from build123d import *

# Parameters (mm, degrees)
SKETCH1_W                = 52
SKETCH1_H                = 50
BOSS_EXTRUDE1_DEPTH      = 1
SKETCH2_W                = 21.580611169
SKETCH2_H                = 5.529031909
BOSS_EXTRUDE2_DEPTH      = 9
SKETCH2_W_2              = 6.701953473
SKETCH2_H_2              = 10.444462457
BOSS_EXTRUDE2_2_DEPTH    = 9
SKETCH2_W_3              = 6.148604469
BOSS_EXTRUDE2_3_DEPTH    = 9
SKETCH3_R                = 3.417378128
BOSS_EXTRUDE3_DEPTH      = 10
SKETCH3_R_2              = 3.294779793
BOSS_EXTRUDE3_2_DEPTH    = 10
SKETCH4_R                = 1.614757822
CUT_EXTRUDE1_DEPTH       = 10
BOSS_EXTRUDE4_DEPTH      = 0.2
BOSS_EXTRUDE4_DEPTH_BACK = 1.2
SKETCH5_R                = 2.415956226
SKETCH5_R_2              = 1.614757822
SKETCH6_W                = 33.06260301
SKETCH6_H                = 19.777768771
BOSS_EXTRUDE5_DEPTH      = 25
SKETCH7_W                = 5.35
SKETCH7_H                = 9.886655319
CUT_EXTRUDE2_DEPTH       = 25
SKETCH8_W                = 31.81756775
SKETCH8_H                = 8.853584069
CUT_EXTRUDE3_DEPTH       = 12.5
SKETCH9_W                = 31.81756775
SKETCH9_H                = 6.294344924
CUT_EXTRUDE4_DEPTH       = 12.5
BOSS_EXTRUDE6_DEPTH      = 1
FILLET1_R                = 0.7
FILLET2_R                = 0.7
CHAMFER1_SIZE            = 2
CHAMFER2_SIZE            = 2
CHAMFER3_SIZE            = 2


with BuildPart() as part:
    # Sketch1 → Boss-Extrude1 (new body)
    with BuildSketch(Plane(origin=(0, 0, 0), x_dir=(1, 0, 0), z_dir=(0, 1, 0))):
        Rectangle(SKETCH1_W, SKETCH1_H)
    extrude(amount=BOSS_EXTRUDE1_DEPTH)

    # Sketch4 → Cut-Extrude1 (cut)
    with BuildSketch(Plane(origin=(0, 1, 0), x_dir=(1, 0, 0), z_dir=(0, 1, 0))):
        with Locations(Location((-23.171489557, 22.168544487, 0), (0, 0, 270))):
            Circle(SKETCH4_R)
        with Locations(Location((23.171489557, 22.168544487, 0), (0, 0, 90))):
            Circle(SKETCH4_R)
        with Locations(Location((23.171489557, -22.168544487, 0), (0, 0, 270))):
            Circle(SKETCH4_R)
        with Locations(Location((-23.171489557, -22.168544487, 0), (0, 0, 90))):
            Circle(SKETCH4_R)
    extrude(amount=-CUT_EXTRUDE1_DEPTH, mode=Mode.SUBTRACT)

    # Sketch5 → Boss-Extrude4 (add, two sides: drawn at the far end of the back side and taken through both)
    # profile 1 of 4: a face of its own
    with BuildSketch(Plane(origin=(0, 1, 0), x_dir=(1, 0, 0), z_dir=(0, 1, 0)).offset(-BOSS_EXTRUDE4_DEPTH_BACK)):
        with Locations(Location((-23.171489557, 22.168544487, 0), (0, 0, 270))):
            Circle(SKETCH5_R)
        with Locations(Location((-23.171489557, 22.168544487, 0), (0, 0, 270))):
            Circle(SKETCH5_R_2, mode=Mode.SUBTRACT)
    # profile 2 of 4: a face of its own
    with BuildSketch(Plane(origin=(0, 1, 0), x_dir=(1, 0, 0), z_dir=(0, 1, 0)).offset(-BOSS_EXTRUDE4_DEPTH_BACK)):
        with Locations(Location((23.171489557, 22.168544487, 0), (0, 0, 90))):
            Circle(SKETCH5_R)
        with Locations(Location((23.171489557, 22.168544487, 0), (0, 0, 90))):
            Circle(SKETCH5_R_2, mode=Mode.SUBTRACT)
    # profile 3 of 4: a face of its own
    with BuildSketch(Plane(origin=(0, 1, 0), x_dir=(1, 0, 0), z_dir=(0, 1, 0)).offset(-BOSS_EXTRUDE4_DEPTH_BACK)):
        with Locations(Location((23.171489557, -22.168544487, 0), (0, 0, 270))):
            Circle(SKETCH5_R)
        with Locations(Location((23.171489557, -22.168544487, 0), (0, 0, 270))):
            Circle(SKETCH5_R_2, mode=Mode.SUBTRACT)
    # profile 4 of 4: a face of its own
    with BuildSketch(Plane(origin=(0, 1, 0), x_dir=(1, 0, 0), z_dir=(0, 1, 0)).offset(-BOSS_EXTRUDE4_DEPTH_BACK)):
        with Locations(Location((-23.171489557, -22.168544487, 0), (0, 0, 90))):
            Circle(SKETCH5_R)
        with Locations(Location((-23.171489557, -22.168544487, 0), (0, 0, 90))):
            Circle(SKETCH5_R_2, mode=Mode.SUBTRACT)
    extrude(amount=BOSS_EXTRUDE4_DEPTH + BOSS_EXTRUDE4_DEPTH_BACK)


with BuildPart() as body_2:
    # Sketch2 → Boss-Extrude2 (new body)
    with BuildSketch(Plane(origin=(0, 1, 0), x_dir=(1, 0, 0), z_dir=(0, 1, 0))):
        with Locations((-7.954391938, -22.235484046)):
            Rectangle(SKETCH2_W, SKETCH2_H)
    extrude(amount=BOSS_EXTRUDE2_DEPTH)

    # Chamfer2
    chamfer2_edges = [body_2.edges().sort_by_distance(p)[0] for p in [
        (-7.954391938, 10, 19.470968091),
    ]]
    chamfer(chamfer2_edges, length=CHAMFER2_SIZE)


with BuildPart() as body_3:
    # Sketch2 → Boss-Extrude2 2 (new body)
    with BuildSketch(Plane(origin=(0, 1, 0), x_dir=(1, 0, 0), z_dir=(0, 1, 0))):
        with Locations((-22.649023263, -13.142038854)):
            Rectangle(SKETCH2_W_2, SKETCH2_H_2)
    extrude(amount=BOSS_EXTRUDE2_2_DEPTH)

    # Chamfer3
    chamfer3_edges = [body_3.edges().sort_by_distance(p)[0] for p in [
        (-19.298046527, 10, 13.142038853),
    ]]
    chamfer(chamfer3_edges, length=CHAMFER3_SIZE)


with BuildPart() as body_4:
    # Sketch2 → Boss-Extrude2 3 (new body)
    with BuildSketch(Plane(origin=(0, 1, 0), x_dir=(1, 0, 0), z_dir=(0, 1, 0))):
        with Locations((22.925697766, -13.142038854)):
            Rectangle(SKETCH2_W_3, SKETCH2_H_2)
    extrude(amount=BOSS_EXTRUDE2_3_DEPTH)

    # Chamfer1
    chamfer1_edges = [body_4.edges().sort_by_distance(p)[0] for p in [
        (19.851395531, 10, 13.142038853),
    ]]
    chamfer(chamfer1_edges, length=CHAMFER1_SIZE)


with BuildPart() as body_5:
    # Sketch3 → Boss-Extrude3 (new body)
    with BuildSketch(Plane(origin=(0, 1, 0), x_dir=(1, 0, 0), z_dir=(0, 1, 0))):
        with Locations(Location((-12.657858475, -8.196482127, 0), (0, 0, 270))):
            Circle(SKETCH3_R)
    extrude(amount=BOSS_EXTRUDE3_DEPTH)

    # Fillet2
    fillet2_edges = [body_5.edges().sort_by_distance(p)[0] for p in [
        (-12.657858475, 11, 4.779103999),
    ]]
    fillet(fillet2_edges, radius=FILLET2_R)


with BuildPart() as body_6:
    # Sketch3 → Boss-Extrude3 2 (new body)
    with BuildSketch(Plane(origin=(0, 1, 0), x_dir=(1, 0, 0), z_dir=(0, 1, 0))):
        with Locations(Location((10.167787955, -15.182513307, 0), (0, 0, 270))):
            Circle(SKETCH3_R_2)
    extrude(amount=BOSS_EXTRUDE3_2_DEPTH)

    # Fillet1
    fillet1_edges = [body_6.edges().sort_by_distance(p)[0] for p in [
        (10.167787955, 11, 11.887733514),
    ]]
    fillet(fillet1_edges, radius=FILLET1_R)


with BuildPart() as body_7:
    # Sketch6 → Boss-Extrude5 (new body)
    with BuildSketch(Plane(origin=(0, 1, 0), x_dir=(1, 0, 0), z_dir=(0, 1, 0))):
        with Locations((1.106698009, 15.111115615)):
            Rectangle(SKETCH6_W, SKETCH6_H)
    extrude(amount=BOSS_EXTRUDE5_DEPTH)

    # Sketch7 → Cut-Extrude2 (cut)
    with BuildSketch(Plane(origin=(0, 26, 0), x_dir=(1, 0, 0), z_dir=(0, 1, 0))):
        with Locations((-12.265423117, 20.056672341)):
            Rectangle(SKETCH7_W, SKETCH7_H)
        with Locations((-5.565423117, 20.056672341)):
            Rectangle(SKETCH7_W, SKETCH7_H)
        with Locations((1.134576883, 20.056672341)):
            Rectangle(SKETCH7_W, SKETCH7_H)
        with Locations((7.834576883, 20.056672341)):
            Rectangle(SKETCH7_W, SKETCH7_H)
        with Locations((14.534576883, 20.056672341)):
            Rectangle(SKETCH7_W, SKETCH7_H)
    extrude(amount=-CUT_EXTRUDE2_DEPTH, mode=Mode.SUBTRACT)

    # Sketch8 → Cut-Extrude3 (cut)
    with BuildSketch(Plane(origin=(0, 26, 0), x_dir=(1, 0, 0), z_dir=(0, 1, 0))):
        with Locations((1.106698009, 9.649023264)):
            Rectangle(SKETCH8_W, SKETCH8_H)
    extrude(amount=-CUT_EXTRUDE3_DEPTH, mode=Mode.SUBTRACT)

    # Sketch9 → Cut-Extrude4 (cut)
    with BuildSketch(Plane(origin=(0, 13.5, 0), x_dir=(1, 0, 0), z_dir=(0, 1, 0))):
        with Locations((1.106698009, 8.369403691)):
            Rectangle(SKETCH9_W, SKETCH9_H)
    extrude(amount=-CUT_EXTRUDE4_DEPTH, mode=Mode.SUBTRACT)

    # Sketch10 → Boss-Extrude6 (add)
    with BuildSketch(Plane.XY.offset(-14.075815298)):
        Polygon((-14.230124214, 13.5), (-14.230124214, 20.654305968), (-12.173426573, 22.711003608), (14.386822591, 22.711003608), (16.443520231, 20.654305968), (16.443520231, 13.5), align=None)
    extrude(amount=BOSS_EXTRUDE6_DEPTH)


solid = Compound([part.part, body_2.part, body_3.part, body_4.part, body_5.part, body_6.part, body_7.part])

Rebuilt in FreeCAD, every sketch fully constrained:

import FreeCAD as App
import Part
import Sketcher

V = App.Vector
Q = App.Units.Quantity


def edges_at(feature, points):
    """Names of the edges that pass closest to the given points."""
    edges = feature.Shape.Edges
    near = lambda p: min(range(len(edges)), key=lambda i: edges[i].distToShape(Part.Vertex(*p))[0])
    return sorted({f"Edge{near(p) + 1}" for p in points})


def add_polygon(sketch, points):
    """Adds a closed chain of lines whose ends are joined by coincident constraints."""
    first, n = sketch.GeometryCount, len(points)
    for a, b in zip(points, points[1:] + points[:1]):
        sketch.addGeometry(Part.LineSegment(App.Vector(*a, 0), App.Vector(*b, 0)), False)
    for i in range(n):
        sketch.addConstraint(Sketcher.Constraint("Coincident", first + i, 2, first + (i + 1) % n, 1))

doc = App.newDocument("Part")
params = doc.addObject("Spreadsheet::Sheet", "Params")
for row, (alias, value) in enumerate([
    ("sketch1_width", "52 mm"),
    ("sketch1_height", "50 mm"),
    ("pad1_length", "1 mm"),
    ("pocket1_length", "10 mm"),
    ("pad2_length", "0.2 mm"),
    ("pad2_length2", "1.2 mm"),
    ("pad3_length", "9 mm"),
    ("chamfer_size", "2 mm"),
    ("pad4_length", "9 mm"),
    ("chamfer2_size", "2 mm"),
    ("pad5_length", "9 mm"),
    ("chamfer3_size", "2 mm"),
    ("pad6_length", "10 mm"),
    ("fillet_radius", "0.7 mm"),
    ("pad7_length", "10 mm"),
    ("fillet2_radius", "0.7 mm"),
    ("pad8_length", "25 mm"),
    ("sketch10_width", "5.35 mm"),
    ("pocket2_length", "25 mm"),
    ("pocket3_length", "12.5 mm"),
    ("pocket4_length", "12.5 mm"),
    ("pad9_length", "1 mm"),
], start=1):
    params.set(f"A{row}", alias)
    params.set(f"B{row}", "=" + value)
    params.setAlias(f"B{row}", alias)

body = doc.addObject("PartDesign::Body", "Body")

# Sketch on XZ plane
sketch1 = body.newObject("Sketcher::SketchObject", "Sketch")
sketch1.AttachmentSupport = (doc.getObject("XZ_Plane"), [""])
sketch1.MapMode = "FlatFace"
add_polygon(sketch1, [(-26, -25), (-26, 25), (26, 25), (26, -25)])  # lines 0-3
sketch1.addConstraint([
    Sketcher.Constraint("Vertical", 0),
    Sketcher.Constraint("Horizontal", 1),
    Sketcher.Constraint("Vertical", 2),
    Sketcher.Constraint("Horizontal", 3),
    Sketcher.Constraint("Symmetric", 0, 2, 2, 2, -1, 1),
    Sketcher.Constraint("DistanceX", 1, 1, 1, 2, Q("52 mm")),
    Sketcher.Constraint("DistanceY", 0, 1, 0, 2, Q("50 mm")),
])
sketch1.setExpression("Constraints[9]", "Params.sketch1_width")
sketch1.setExpression("Constraints[10]", "Params.sketch1_height")
pad1 = body.newObject("PartDesign::Pad", "Pad")
pad1.Profile = sketch1
pad1.setExpression("Length", "Params.pad1_length")
pad1.Reversed = True

# Sketch on XZ plane
sketch2 = body.newObject("Sketcher::SketchObject", "Sketch001")
sketch2.AttachmentSupport = (doc.getObject("XZ_Plane"), [""])
sketch2.MapMode = "FlatFace"
sketch2.AttachmentOffset = App.Placement(V(0, 0, -1), App.Rotation())
sketch2.addGeometry([
    Part.Circle(V(-23.2, -22.2, 0), V(0, 0, 1), 1.6),
    Part.Circle(V(23.2, -22.2, 0), V(0, 0, 1), 1.6),
    Part.Circle(V(23.2, 22.2, 0), V(0, 0, 1), 1.6),
    Part.Circle(V(-23.2, 22.2, 0), V(0, 0, 1), 1.6),
], False)
sketch2.addConstraint([
    Sketcher.Constraint("Equal", 0, 1),
    Sketcher.Constraint("Equal", 1, 2),
    Sketcher.Constraint("Equal", 2, 3),
    Sketcher.Constraint("Symmetric", 0, 3, 2, 3, -1, 1),
    Sketcher.Constraint("Symmetric", 1, 3, 3, 3, -1, 1),
    Sketcher.Constraint("Symmetric", 0, 3, 1, 3, -2),
    Sketcher.Constraint("Diameter", 0, Q("3.229516 mm")),
    Sketcher.Constraint("DistanceX", 0, 3, -1, 1, Q("23.17149 mm")),
    Sketcher.Constraint("DistanceY", 1, 3, 2, 3, Q("44.337089 mm")),
])
pocket1 = body.newObject("PartDesign::Pocket", "Pocket")
pocket1.Profile = sketch2
pocket1.setExpression("Length", "Params.pocket1_length")
pocket1.Reversed = True

# Sketch on XZ plane
sketch3 = body.newObject("Sketcher::SketchObject", "Sketch002")
sketch3.AttachmentSupport = (doc.getObject("XZ_Plane"), [""])
sketch3.MapMode = "FlatFace"
sketch3.AttachmentOffset = App.Placement(V(0, 0, -1), App.Rotation())
sketch3.addGeometry([
    Part.Circle(V(-23.2, -22.2, 0), V(0, 0, 1), 2.4),  # 0
    Part.Circle(V(-23.2, -22.2, 0), V(0, 0, 1), 1.6),  # 1
    Part.Circle(V(23.2, -22.2, 0), V(0, 0, 1), 2.4),  # 2
    Part.Circle(V(23.2, -22.2, 0), V(0, 0, 1), 1.6),  # 3
    Part.Circle(V(23.2, 22.2, 0), V(0, 0, 1), 2.4),  # 4
    Part.Circle(V(23.2, 22.2, 0), V(0, 0, 1), 1.6),  # 5
    Part.Circle(V(-23.2, 22.2, 0), V(0, 0, 1), 2.4),  # 6
    Part.Circle(V(-23.2, 22.2, 0), V(0, 0, 1), 1.6),  # 7
], False)
sketch3.addConstraint([
    Sketcher.Constraint("Coincident", 1, 3, 0, 3),
    Sketcher.Constraint("Coincident", 3, 3, 2, 3),
    Sketcher.Constraint("Coincident", 5, 3, 4, 3),
    Sketcher.Constraint("Coincident", 7, 3, 6, 3),
    Sketcher.Constraint("Equal", 0, 2),
    Sketcher.Constraint("Equal", 1, 3),
    Sketcher.Constraint("Equal", 2, 4),
    Sketcher.Constraint("Equal", 3, 5),
    Sketcher.Constraint("Equal", 4, 6),
    Sketcher.Constraint("Equal", 5, 7),
    Sketcher.Constraint("Symmetric", 0, 3, 4, 3, -1, 1),
    Sketcher.Constraint("Symmetric", 2, 3, 6, 3, -1, 1),
    Sketcher.Constraint("Symmetric", 0, 3, 2, 3, -2),
    Sketcher.Constraint("Diameter", 0, Q("4.831912 mm")),
    Sketcher.Constraint("Diameter", 1, Q("3.229516 mm")),
    Sketcher.Constraint("DistanceX", 0, 3, -1, 1, Q("23.17149 mm")),
    Sketcher.Constraint("DistanceY", 2, 3, 4, 3, Q("44.337089 mm")),
])
pad2 = body.newObject("PartDesign::Pad", "Pad001")
pad2.Profile = sketch3
pad2.Type = "TwoLengths"
pad2.setExpression("Length", "Params.pad2_length")
pad2.setExpression("Length2", "Params.pad2_length2")
pad2.Reversed = True
body2 = doc.addObject("PartDesign::Body", "Body001")

# Sketch on XZ plane
sketch4 = body2.newObject("Sketcher::SketchObject", "Sketch003")
sketch4.AttachmentSupport = (doc.getObject("XZ_Plane001"), [""])
sketch4.MapMode = "FlatFace"
sketch4.AttachmentOffset = App.Placement(V(0, 0, -1), App.Rotation())
add_polygon(sketch4, [(-19, 19), (-19, 25), (3, 25), (3, 19)])  # lines 0-3
sketch4.addConstraint([
    Sketcher.Constraint("Vertical", 0),
    Sketcher.Constraint("Horizontal", 1),
    Sketcher.Constraint("Vertical", 2),
    Sketcher.Constraint("Horizontal", 3),
    Sketcher.Constraint("DistanceY", -1, 1, 0, 2, Q("25 mm")),
    Sketcher.Constraint("DistanceX", 1, 1, 1, 2, Q("21.580611 mm")),
    Sketcher.Constraint("DistanceY", 0, 1, 0, 2, Q("5.529032 mm")),
    Sketcher.Constraint("DistanceX", 0, 2, -1, 1, Q("18.744698 mm")),
])
pad3 = body2.newObject("PartDesign::Pad", "Pad002")
pad3.Profile = sketch4
pad3.setExpression("Length", "Params.pad3_length")
pad3.Reversed = True
doc.recompute()

chamfer = body2.newObject("PartDesign::Chamfer", "Chamfer")
chamfer.Base = (pad3, edges_at(pad3, [(-7.954, 10, 19.471)]))
chamfer.setExpression("Size", "Params.chamfer_size")
body3 = doc.addObject("PartDesign::Body", "Body002")

# Sketch on XZ plane
sketch5 = body3.newObject("Sketcher::SketchObject", "Sketch004")
sketch5.AttachmentSupport = (doc.getObject("XZ_Plane002"), [""])
sketch5.MapMode = "FlatFace"
sketch5.AttachmentOffset = App.Placement(V(0, 0, -1), App.Rotation())
add_polygon(sketch5, [(-26, 8), (-26, 18), (-19, 18), (-19, 8)])  # lines 0-3
sketch5.addConstraint([
    Sketcher.Constraint("Vertical", 0),
    Sketcher.Constraint("Horizontal", 1),
    Sketcher.Constraint("Vertical", 2),
    Sketcher.Constraint("Horizontal", 3),
    Sketcher.Constraint("DistanceX", 0, 2, -1, 1, Q("26 mm")),
    Sketcher.Constraint("DistanceX", 1, 1, 1, 2, Q("6.701953 mm")),
    Sketcher.Constraint("DistanceY", 0, 1, 0, 2, Q("10.444462 mm")),
    Sketcher.Constraint("DistanceY", -1, 1, 0, 2, Q("18.36427 mm")),
])
pad4 = body3.newObject("PartDesign::Pad", "Pad003")
pad4.Profile = sketch5
pad4.setExpression("Length", "Params.pad4_length")
pad4.Reversed = True
doc.recompute()

chamfer2 = body3.newObject("PartDesign::Chamfer", "Chamfer001")
chamfer2.Base = (pad4, edges_at(pad4, [(-19.298, 10, 13.142)]))
chamfer2.setExpression("Size", "Params.chamfer2_size")
body4 = doc.addObject("PartDesign::Body", "Body003")

# Sketch on XZ plane
sketch6 = body4.newObject("Sketcher::SketchObject", "Sketch005")
sketch6.AttachmentSupport = (doc.getObject("XZ_Plane003"), [""])
sketch6.MapMode = "FlatFace"
sketch6.AttachmentOffset = App.Placement(V(0, 0, -1), App.Rotation())
add_polygon(sketch6, [(20, 8), (20, 18), (26, 18), (26, 8)])  # lines 0-3
sketch6.addConstraint([
    Sketcher.Constraint("Vertical", 0),
    Sketcher.Constraint("Horizontal", 1),
    Sketcher.Constraint("Vertical", 2),
    Sketcher.Constraint("Horizontal", 3),
    Sketcher.Constraint("DistanceX", -1, 1, 1, 2, Q("26 mm")),
    Sketcher.Constraint("DistanceX", 1, 1, 1, 2, Q("6.148604 mm")),
    Sketcher.Constraint("DistanceY", 0, 1, 0, 2, Q("10.444462 mm")),
    Sketcher.Constraint("DistanceY", -1, 1, 0, 2, Q("18.36427 mm")),
])
pad5 = body4.newObject("PartDesign::Pad", "Pad004")
pad5.Profile = sketch6
pad5.setExpression("Length", "Params.pad5_length")
pad5.Reversed = True
doc.recompute()

chamfer3 = body4.newObject("PartDesign::Chamfer", "Chamfer002")
chamfer3.Base = (pad5, edges_at(pad5, [(19.851, 10, 13.142)]))
chamfer3.setExpression("Size", "Params.chamfer3_size")
body5 = doc.addObject("PartDesign::Body", "Body004")

# Sketch on XZ plane
sketch7 = body5.newObject("Sketcher::SketchObject", "Sketch006")
sketch7.AttachmentSupport = (doc.getObject("XZ_Plane004"), [""])
sketch7.MapMode = "FlatFace"
sketch7.AttachmentOffset = App.Placement(V(0, 0, -1), App.Rotation())
sketch7.addGeometry(Part.Circle(V(-12.7, 8.2, 0), V(0, 0, 1), 3.4), False)
sketch7.addConstraint([
    Sketcher.Constraint("Diameter", 0, Q("6.834756 mm")),
    Sketcher.Constraint("DistanceX", 0, 3, -1, 1, Q("12.657858 mm")),
    Sketcher.Constraint("DistanceY", -1, 1, 0, 3, Q("8.196482 mm")),
])
pad6 = body5.newObject("PartDesign::Pad", "Pad005")
pad6.Profile = sketch7
pad6.setExpression("Length", "Params.pad6_length")
pad6.Reversed = True
doc.recompute()

fillet = body5.newObject("PartDesign::Fillet", "Fillet")
fillet.Base = (pad6, edges_at(pad6, [(-12.658, 11, 4.779)]))
fillet.setExpression("Radius", "Params.fillet_radius")
body6 = doc.addObject("PartDesign::Body", "Body005")

# Sketch on XZ plane
sketch8 = body6.newObject("Sketcher::SketchObject", "Sketch007")
sketch8.AttachmentSupport = (doc.getObject("XZ_Plane005"), [""])
sketch8.MapMode = "FlatFace"
sketch8.AttachmentOffset = App.Placement(V(0, 0, -1), App.Rotation())
sketch8.addGeometry(Part.Circle(V(10.2, 15.2, 0), V(0, 0, 1), 3.3), False)
sketch8.addConstraint([
    Sketcher.Constraint("Diameter", 0, Q("6.58956 mm")),
    Sketcher.Constraint("DistanceX", -1, 1, 0, 3, Q("10.167788 mm")),
    Sketcher.Constraint("DistanceY", -1, 1, 0, 3, Q("15.182513 mm")),
])
pad7 = body6.newObject("PartDesign::Pad", "Pad006")
pad7.Profile = sketch8
pad7.setExpression("Length", "Params.pad7_length")
pad7.Reversed = True
doc.recompute()

fillet2 = body6.newObject("PartDesign::Fillet", "Fillet001")
fillet2.Base = (pad7, edges_at(pad7, [(10.168, 11, 11.888)]))
fillet2.setExpression("Radius", "Params.fillet2_radius")
body7 = doc.addObject("PartDesign::Body", "Body006")

# Sketch on XZ plane
sketch9 = body7.newObject("Sketcher::SketchObject", "Sketch008")
sketch9.AttachmentSupport = (doc.getObject("XZ_Plane006"), [""])
sketch9.MapMode = "FlatFace"
sketch9.AttachmentOffset = App.Placement(V(0, 0, -1), App.Rotation())
add_polygon(sketch9, [(-15, -25), (-15, -5), (18, -5), (18, -25)])  # lines 0-3
sketch9.addConstraint([
    Sketcher.Constraint("Vertical", 0),
    Sketcher.Constraint("Horizontal", 1),
    Sketcher.Constraint("Vertical", 2),
    Sketcher.Constraint("Horizontal", 3),
    Sketcher.Constraint("DistanceY", 2, 2, -1, 1, Q("25 mm")),
    Sketcher.Constraint("DistanceX", -1, 1, 1, 2, Q("17.638 mm")),
    Sketcher.Constraint("DistanceY", 0, 1, 0, 2, Q("19.777769 mm")),
    Sketcher.Constraint("DistanceX", 1, 1, 1, 2, Q("33.062603 mm")),
])
pad8 = body7.newObject("PartDesign::Pad", "Pad007")
pad8.Profile = sketch9
pad8.setExpression("Length", "Params.pad8_length")
pad8.Reversed = True

# Sketch on XZ plane
sketch10 = body7.newObject("Sketcher::SketchObject", "Sketch009")
sketch10.AttachmentSupport = (doc.getObject("XZ_Plane006"), [""])
sketch10.MapMode = "FlatFace"
sketch10.AttachmentOffset = App.Placement(V(0, 0, -26), App.Rotation())
add_polygon(sketch10, [(-15, -25), (-15, -15), (-10, -15), (-10, -25)])  # lines 0-3
add_polygon(sketch10, [(-8, -25), (-8, -15), (-3, -15), (-3, -25)])  # lines 4-7
add_polygon(sketch10, [(-2, -25), (-2, -15), (4, -15), (4, -25)])  # lines 8-11
add_polygon(sketch10, [(5, -25), (5, -15), (11, -15), (11, -25)])  # lines 12-15
add_polygon(sketch10, [(12, -25), (12, -15), (17, -15), (17, -25)])  # lines 16-19
sketch10.addConstraint([
    Sketcher.Constraint("Vertical", 0),
    Sketcher.Constraint("Horizontal", 1),
    Sketcher.Constraint("Vertical", 2),
    Sketcher.Constraint("Horizontal", 3),
    Sketcher.Constraint("Vertical", 4),
    Sketcher.Constraint("Horizontal", 5),
    Sketcher.Constraint("Vertical", 6),
    Sketcher.Constraint("Horizontal", 7),
    Sketcher.Constraint("Vertical", 8),
    Sketcher.Constraint("Horizontal", 9),
    Sketcher.Constraint("Vertical", 10),
    Sketcher.Constraint("Horizontal", 11),
    Sketcher.Constraint("Vertical", 12),
    Sketcher.Constraint("Horizontal", 13),
    Sketcher.Constraint("Vertical", 14),
    Sketcher.Constraint("Horizontal", 15),
    Sketcher.Constraint("Vertical", 16),
    Sketcher.Constraint("Horizontal", 17),
    Sketcher.Constraint("Vertical", 18),
    Sketcher.Constraint("Horizontal", 19),
    Sketcher.Constraint("Horizontal", 1, 2, 4, 2),
    Sketcher.Constraint("Horizontal", 3, 2, 6, 2),
    Sketcher.Constraint("Horizontal", 5, 2, 8, 2),
    Sketcher.Constraint("Horizontal", 7, 2, 10, 2),
    Sketcher.Constraint("Horizontal", 9, 2, 12, 2),
    Sketcher.Constraint("Horizontal", 11, 2, 14, 2),
    Sketcher.Constraint("Horizontal", 13, 2, 16, 2),
    Sketcher.Constraint("Horizontal", 15, 2, 18, 2),
    Sketcher.Constraint("Equal", 3, 5),
    Sketcher.Constraint("Equal", 7, 9),
    Sketcher.Constraint("Equal", 11, 13),
    Sketcher.Constraint("Equal", 15, 17),
    Sketcher.Constraint("DistanceY", 2, 2, -1, 1, Q("25 mm")),
    Sketcher.Constraint("DistanceX", 1, 1, 1, 2, Q("5.35 mm")),
    Sketcher.Constraint("DistanceX", 0, 2, 4, 2, Q("6.7 mm")),
    Sketcher.Constraint("DistanceX", 4, 2, 8, 2, Q("6.7 mm")),
    Sketcher.Constraint("DistanceX", 8, 2, 12, 2, Q("6.7 mm")),
    Sketcher.Constraint("DistanceX", 12, 2, 16, 2, Q("6.7 mm")),
    Sketcher.Constraint("DistanceY", 0, 1, 0, 2, Q("9.886655 mm")),
    Sketcher.Constraint("DistanceX", 0, 2, -1, 1, Q("14.940423 mm")),
])
sketch10.setExpression("Constraints[53]", "Params.sketch10_width")
pocket2 = body7.newObject("PartDesign::Pocket", "Pocket001")
pocket2.Profile = sketch10
pocket2.setExpression("Length", "Params.pocket2_length")
pocket2.Reversed = True

# Sketch on XZ plane
sketch11 = body7.newObject("Sketcher::SketchObject", "Sketch010")
sketch11.AttachmentSupport = (doc.getObject("XZ_Plane006"), [""])
sketch11.MapMode = "FlatFace"
sketch11.AttachmentOffset = App.Placement(V(0, 0, -26), App.Rotation())
add_polygon(sketch11, [(-15, -14), (-15, -5), (17, -5), (17, -14)])  # lines 0-3
sketch11.addConstraint([
    Sketcher.Constraint("Vertical", 0),
    Sketcher.Constraint("Horizontal", 1),
    Sketcher.Constraint("Vertical", 2),
    Sketcher.Constraint("Horizontal", 3),
    Sketcher.Constraint("DistanceX", 1, 1, 1, 2, Q("31.817568 mm")),
    Sketcher.Constraint("DistanceY", 0, 1, 0, 2, Q("8.853584 mm")),
    Sketcher.Constraint("DistanceY", 0, 2, -1, 1, Q("5.222231 mm")),
    Sketcher.Constraint("DistanceX", -1, 1, 1, 2, Q("17.015482 mm")),
])
pocket3 = body7.newObject("PartDesign::Pocket", "Pocket002")
pocket3.Profile = sketch11
pocket3.setExpression("Length", "Params.pocket3_length")
pocket3.Reversed = True

# Sketch on XZ plane
sketch12 = body7.newObject("Sketcher::SketchObject", "Sketch011")
sketch12.AttachmentSupport = (doc.getObject("XZ_Plane006"), [""])
sketch12.MapMode = "FlatFace"
sketch12.AttachmentOffset = App.Placement(V(0, 0, -13.5), App.Rotation())
add_polygon(sketch12, [(-15, -12), (-15, -5), (17, -5), (17, -12)])  # lines 0-3
sketch12.addConstraint([
    Sketcher.Constraint("Vertical", 0),
    Sketcher.Constraint("Horizontal", 1),
    Sketcher.Constraint("Vertical", 2),
    Sketcher.Constraint("Horizontal", 3),
    Sketcher.Constraint("DistanceX", 1, 1, 1, 2, Q("31.817568 mm")),
    Sketcher.Constraint("DistanceY", 0, 1, 0, 2, Q("6.294345 mm")),
    Sketcher.Constraint("DistanceY", 0, 2, -1, 1, Q("5.222231 mm")),
    Sketcher.Constraint("DistanceX", -1, 1, 1, 2, Q("17.015482 mm")),
])
pocket4 = body7.newObject("PartDesign::Pocket", "Pocket003")
pocket4.Profile = sketch12
pocket4.setExpression("Length", "Params.pocket4_length")
pocket4.Reversed = True

# Sketch on XY plane
sketch13 = body7.newObject("Sketcher::SketchObject", "Sketch012")
sketch13.AttachmentSupport = (doc.getObject("XY_Plane006"), [""])
sketch13.MapMode = "FlatFace"
sketch13.AttachmentOffset = App.Placement(V(0, 0, -14.075815), App.Rotation())
add_polygon(sketch13, [(-14.2, 20.7), (-14.2, 13.5), (16.4, 13.5), (16.4, 20.7), (14.4, 22.7), (-12.2, 22.7)])  # lines 0-5
sketch13.addConstraint([
    Sketcher.Constraint("Vertical", 0),
    Sketcher.Constraint("Horizontal", 1),
    Sketcher.Constraint("Vertical", 2),
    Sketcher.Constraint("Horizontal", 4),
    Sketcher.Constraint("Perpendicular", 3, 5),
    Sketcher.Constraint("Horizontal", 2, 2, 5, 2),
    Sketcher.Constraint("Equal", 3, 5),
    Sketcher.Constraint("DistanceY", -1, 1, 0, 2, Q("13.5 mm")),
    Sketcher.Constraint("DistanceX", 4, 2, 4, 1, Q("26.560249 mm")),
    Sketcher.Constraint("Distance", 3, Q("2.90861 mm")),
    Sketcher.Constraint("DistanceY", 0, 2, 0, 1, Q("7.154306 mm")),
    Sketcher.Constraint("DistanceX", -1, 1, 1, 2, Q("16.44352 mm")),
])
pad9 = body7.newObject("PartDesign::Pad", "Pad008")
pad9.Profile = sketch13
pad9.setExpression("Length", "Params.pad9_length")

doc.recompute()
